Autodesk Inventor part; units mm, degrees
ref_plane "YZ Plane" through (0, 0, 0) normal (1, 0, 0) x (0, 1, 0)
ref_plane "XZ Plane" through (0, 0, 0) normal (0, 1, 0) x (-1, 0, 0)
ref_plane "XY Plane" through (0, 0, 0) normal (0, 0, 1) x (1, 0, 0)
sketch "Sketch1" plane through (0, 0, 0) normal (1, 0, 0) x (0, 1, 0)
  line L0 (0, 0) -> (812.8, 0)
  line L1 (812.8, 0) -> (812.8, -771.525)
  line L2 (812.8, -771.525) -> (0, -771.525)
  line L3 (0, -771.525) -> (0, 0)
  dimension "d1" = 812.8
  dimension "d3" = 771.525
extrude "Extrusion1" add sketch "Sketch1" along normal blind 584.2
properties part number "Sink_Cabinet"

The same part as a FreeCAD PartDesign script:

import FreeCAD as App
import Part
import Sketcher

V = App.Vector
Q = App.Units.Quantity


def add_polygon(sketch, points):
    """Adds a closed chain of lines whose ends are joined by coincident constraints."""
    first, n = sketch.GeometryCount, len(points)
    for a, b in zip(points, points[1:] + points[:1]):
        sketch.addGeometry(Part.LineSegment(App.Vector(*a, 0), App.Vector(*b, 0)), False)
    for i in range(n):
        sketch.addConstraint(Sketcher.Constraint("Coincident", first + i, 2, first + (i + 1) % n, 1))

doc = App.newDocument("Part")
body = doc.addObject("PartDesign::Body", "Body")

# Sketch on YZ plane
sketch1 = body.newObject("Sketcher::SketchObject", "Sketch")
sketch1.AttachmentSupport = (doc.getObject("YZ_Plane"), [""])
sketch1.MapMode = "FlatFace"
add_polygon(sketch1, [(812.8, 0), (0, 0), (0, -771.525), (812.8, -771.525)])  # lines 0-3
sketch1.addConstraint(Sketcher.Constraint("Horizontal", 0))
sketch1.addConstraint(Sketcher.Constraint("Vertical", 1))
sketch1.addConstraint(Sketcher.Constraint("Horizontal", 2))
sketch1.addConstraint(Sketcher.Constraint("Vertical", 3))
sketch1.addConstraint(Sketcher.Constraint("Coincident", 0, 2, -1, 1))
sketch1.addConstraint(Sketcher.Constraint("DistanceX", 0, 2, 0, 1, Q("32 in")))
sketch1.addConstraint(Sketcher.Constraint("DistanceY", 1, 2, 1, 1, Q("30.375 in")))
pad1 = body.newObject("PartDesign::Pad", "Pad")
pad1.Profile = sketch1
pad1.Length = Q("23 in")

doc.recompute()
